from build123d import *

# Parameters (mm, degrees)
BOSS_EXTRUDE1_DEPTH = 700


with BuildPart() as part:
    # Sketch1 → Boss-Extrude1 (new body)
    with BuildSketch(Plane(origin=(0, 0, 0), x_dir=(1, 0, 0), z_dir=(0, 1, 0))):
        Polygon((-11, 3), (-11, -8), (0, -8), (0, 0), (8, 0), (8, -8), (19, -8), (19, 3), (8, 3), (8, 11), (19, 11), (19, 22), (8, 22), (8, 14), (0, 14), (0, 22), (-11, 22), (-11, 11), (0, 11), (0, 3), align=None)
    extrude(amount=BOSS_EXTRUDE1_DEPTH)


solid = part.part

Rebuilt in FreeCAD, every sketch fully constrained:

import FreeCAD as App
import Part
import Sketcher
from FreeCAD import Vector
Q = App.Units.Quantity

doc = App.newDocument("Part")
body = doc.addObject("PartDesign::Body", "Body")

sketch1 = body.newObject("Sketcher::SketchObject", "Sketch")
sketch1.AttachmentSupport = (doc.getObject("XZ_Plane"), [""])
sketch1.MapMode = "FlatFace"
sketch1.addGeometry([
    Part.LineSegment(Vector(-11, -3, 0), Vector(-11, 8, 0)),
    Part.LineSegment(Vector(-11, 8, 0), Vector(0, 8, 0)),
    Part.LineSegment(Vector(0, 8, 0), Vector(0, 0, 0)),
    Part.LineSegment(Vector(0, 0, 0), Vector(8, 0, 0)),
    Part.LineSegment(Vector(8, 0, 0), Vector(8, 8, 0)),
    Part.LineSegment(Vector(8, 8, 0), Vector(19, 8, 0)),
    Part.LineSegment(Vector(19, 8, 0), Vector(19, -3, 0)),
    Part.LineSegment(Vector(19, -3, 0), Vector(8, -3, 0)),
    Part.LineSegment(Vector(8, -3, 0), Vector(8, -11, 0)),
    Part.LineSegment(Vector(8, -11, 0), Vector(19, -11, 0)),
    Part.LineSegment(Vector(19, -11, 0), Vector(19, -22, 0)),
    Part.LineSegment(Vector(19, -22, 0), Vector(8, -22, 0)),
    Part.LineSegment(Vector(8, -22, 0), Vector(8, -14, 0)),
    Part.LineSegment(Vector(8, -14, 0), Vector(0, -14, 0)),
    Part.LineSegment(Vector(0, -14, 0), Vector(0, -22, 0)),
    Part.LineSegment(Vector(0, -22, 0), Vector(-11, -22, 0)),
    Part.LineSegment(Vector(-11, -22, 0), Vector(-11, -11, 0)),
    Part.LineSegment(Vector(-11, -11, 0), Vector(0, -11, 0)),
    Part.LineSegment(Vector(0, -11, 0), Vector(0, -3, 0)),
    Part.LineSegment(Vector(0, -3, 0), Vector(-11, -3, 0)),
], False)
sketch1.addConstraint([
    Sketcher.Constraint("Coincident", 0, 2, 1, 1),
    Sketcher.Constraint("Coincident", 1, 2, 2, 1),
    Sketcher.Constraint("Coincident", 2, 2, 3, 1),
    Sketcher.Constraint("Coincident", 3, 2, 4, 1),
    Sketcher.Constraint("Coincident", 4, 2, 5, 1),
    Sketcher.Constraint("Coincident", 5, 2, 6, 1),
    Sketcher.Constraint("Coincident", 6, 2, 7, 1),
    Sketcher.Constraint("Coincident", 7, 2, 8, 1),
    Sketcher.Constraint("Coincident", 8, 2, 9, 1),
    Sketcher.Constraint("Coincident", 9, 2, 10, 1),
    Sketcher.Constraint("Coincident", 10, 2, 11, 1),
    Sketcher.Constraint("Coincident", 11, 2, 12, 1),
    Sketcher.Constraint("Coincident", 12, 2, 13, 1),
    Sketcher.Constraint("Coincident", 13, 2, 14, 1),
    Sketcher.Constraint("Coincident", 14, 2, 15, 1),
    Sketcher.Constraint("Coincident", 15, 2, 16, 1),
    Sketcher.Constraint("Coincident", 16, 2, 17, 1),
    Sketcher.Constraint("Coincident", 17, 2, 18, 1),
    Sketcher.Constraint("Coincident", 18, 2, 19, 1),
    Sketcher.Constraint("Coincident", 19, 2, 0, 1),
    Sketcher.Constraint("Vertical", 0),
    Sketcher.Constraint("Horizontal", 1),
    Sketcher.Constraint("Vertical", 2),
    Sketcher.Constraint("Horizontal", 3),
    Sketcher.Constraint("Vertical", 4),
    Sketcher.Constraint("Horizontal", 5),
    Sketcher.Constraint("Vertical", 6),
    Sketcher.Constraint("Horizontal", 7),
    Sketcher.Constraint("Vertical", 8),
    Sketcher.Constraint("Horizontal", 9),
    Sketcher.Constraint("Vertical", 10),
    Sketcher.Constraint("Horizontal", 11),
    Sketcher.Constraint("Vertical", 12),
    Sketcher.Constraint("Horizontal", 13),
    Sketcher.Constraint("Vertical", 14),
    Sketcher.Constraint("Horizontal", 15),
    Sketcher.Constraint("Vertical", 16),
    Sketcher.Constraint("Horizontal", 17),
    Sketcher.Constraint("Vertical", 18),
    Sketcher.Constraint("Horizontal", 19),
    Sketcher.Constraint("Coincident", 2, 2, -1, 1),
    Sketcher.Constraint("PointOnObject", 13, 2, -2),
    Sketcher.Constraint("PointOnObject", 17, 2, -2),
    Sketcher.Constraint("Horizontal", 1, 2, 4, 2),
    Sketcher.Constraint("Horizontal", 11, 2, 14, 2),
    Sketcher.Constraint("Horizontal", 9, 2, 16, 2),
    Sketcher.Constraint("Horizontal", 7, 2, 18, 2),
    Sketcher.Constraint("Vertical", 4, 2, 7, 2),
    Sketcher.Constraint("Vertical", 6, 2, 9, 2),
    Sketcher.Constraint("Vertical", 8, 2, 11, 2),
    Sketcher.Constraint("Vertical", 0, 2, 15, 2),
    Sketcher.Constraint("Equal", 1, 5),
    Sketcher.Constraint("Equal", 19, 0),
    Sketcher.Constraint("Equal", 13, 2),
    Sketcher.Constraint("Equal", 4, 8),
    Sketcher.Constraint("Equal", 6, 10),
    Sketcher.Constraint("Equal", 8, 12),
    Sketcher.Constraint("DistanceX", 1, 1, 1, 2, Q("11 mm")),
    Sketcher.Constraint("DistanceX", 3, 1, 3, 2, Q("8 mm")),
])
pad1 = body.newObject("PartDesign::Pad", "Pad")
pad1.Profile = sketch1
pad1.Length = 700
pad1.Reversed = True

doc.recompute()
